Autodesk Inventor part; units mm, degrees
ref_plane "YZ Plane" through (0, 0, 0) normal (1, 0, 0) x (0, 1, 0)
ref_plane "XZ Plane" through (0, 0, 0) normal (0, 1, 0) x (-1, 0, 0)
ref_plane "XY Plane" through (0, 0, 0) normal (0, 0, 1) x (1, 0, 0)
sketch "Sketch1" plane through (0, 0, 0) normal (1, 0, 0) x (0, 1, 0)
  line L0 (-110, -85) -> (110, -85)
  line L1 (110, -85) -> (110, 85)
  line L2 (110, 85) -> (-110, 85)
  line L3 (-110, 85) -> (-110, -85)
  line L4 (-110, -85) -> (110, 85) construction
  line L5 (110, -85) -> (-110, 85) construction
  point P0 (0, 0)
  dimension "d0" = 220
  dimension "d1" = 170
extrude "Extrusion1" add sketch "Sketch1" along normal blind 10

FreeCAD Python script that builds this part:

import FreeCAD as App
import Part
import Sketcher

V = App.Vector
Q = App.Units.Quantity

doc = App.newDocument("Part")
params = doc.addObject("Spreadsheet::Sheet", "Params")
for row, (alias, value) in enumerate([
    ("sketch1_width", "220 mm"),
    ("sketch1_height", "170 mm"),
    ("pad1_length", "10 mm"),
], start=1):
    params.set(f"A{row}", alias)
    params.set(f"B{row}", "=" + value)
    params.setAlias(f"B{row}", alias)

body = doc.addObject("PartDesign::Body", "Body")

sketch1 = body.newObject("Sketcher::SketchObject", "Sketch")
sketch1.AttachmentSupport = (doc.getObject("YZ_Plane"), [""])
sketch1.MapMode = "FlatFace"
sketch1.addGeometry([
    Part.LineSegment(V(-110, 85, 0), V(-110, -85, 0)),
    Part.LineSegment(V(-110, -85, 0), V(110, -85, 0)),
    Part.LineSegment(V(110, -85, 0), V(110, 85, 0)),
    Part.LineSegment(V(110, 85, 0), V(-110, 85, 0)),
], False)
sketch1.addConstraint([
    Sketcher.Constraint("Coincident", 0, 2, 1, 1),
    Sketcher.Constraint("Coincident", 1, 2, 2, 1),
    Sketcher.Constraint("Coincident", 2, 2, 3, 1),
    Sketcher.Constraint("Coincident", 3, 2, 0, 1),
    Sketcher.Constraint("Vertical", 0),
    Sketcher.Constraint("Horizontal", 1),
    Sketcher.Constraint("Vertical", 2),
    Sketcher.Constraint("Horizontal", 3),
    Sketcher.Constraint("Symmetric", 0, 2, 2, 2, -1, 1),
    Sketcher.Constraint("DistanceX", 1, 1, 1, 2, Q("220 mm")),
    Sketcher.Constraint("DistanceY", 0, 2, 0, 1, Q("170 mm")),
])
sketch1.setExpression("Constraints[9]", "Params.sketch1_width")
sketch1.setExpression("Constraints[10]", "Params.sketch1_height")
pad1 = body.newObject("PartDesign::Pad", "Pad")
pad1.Profile = sketch1
pad1.setExpression("Length", "Params.pad1_length")

doc.recompute()
